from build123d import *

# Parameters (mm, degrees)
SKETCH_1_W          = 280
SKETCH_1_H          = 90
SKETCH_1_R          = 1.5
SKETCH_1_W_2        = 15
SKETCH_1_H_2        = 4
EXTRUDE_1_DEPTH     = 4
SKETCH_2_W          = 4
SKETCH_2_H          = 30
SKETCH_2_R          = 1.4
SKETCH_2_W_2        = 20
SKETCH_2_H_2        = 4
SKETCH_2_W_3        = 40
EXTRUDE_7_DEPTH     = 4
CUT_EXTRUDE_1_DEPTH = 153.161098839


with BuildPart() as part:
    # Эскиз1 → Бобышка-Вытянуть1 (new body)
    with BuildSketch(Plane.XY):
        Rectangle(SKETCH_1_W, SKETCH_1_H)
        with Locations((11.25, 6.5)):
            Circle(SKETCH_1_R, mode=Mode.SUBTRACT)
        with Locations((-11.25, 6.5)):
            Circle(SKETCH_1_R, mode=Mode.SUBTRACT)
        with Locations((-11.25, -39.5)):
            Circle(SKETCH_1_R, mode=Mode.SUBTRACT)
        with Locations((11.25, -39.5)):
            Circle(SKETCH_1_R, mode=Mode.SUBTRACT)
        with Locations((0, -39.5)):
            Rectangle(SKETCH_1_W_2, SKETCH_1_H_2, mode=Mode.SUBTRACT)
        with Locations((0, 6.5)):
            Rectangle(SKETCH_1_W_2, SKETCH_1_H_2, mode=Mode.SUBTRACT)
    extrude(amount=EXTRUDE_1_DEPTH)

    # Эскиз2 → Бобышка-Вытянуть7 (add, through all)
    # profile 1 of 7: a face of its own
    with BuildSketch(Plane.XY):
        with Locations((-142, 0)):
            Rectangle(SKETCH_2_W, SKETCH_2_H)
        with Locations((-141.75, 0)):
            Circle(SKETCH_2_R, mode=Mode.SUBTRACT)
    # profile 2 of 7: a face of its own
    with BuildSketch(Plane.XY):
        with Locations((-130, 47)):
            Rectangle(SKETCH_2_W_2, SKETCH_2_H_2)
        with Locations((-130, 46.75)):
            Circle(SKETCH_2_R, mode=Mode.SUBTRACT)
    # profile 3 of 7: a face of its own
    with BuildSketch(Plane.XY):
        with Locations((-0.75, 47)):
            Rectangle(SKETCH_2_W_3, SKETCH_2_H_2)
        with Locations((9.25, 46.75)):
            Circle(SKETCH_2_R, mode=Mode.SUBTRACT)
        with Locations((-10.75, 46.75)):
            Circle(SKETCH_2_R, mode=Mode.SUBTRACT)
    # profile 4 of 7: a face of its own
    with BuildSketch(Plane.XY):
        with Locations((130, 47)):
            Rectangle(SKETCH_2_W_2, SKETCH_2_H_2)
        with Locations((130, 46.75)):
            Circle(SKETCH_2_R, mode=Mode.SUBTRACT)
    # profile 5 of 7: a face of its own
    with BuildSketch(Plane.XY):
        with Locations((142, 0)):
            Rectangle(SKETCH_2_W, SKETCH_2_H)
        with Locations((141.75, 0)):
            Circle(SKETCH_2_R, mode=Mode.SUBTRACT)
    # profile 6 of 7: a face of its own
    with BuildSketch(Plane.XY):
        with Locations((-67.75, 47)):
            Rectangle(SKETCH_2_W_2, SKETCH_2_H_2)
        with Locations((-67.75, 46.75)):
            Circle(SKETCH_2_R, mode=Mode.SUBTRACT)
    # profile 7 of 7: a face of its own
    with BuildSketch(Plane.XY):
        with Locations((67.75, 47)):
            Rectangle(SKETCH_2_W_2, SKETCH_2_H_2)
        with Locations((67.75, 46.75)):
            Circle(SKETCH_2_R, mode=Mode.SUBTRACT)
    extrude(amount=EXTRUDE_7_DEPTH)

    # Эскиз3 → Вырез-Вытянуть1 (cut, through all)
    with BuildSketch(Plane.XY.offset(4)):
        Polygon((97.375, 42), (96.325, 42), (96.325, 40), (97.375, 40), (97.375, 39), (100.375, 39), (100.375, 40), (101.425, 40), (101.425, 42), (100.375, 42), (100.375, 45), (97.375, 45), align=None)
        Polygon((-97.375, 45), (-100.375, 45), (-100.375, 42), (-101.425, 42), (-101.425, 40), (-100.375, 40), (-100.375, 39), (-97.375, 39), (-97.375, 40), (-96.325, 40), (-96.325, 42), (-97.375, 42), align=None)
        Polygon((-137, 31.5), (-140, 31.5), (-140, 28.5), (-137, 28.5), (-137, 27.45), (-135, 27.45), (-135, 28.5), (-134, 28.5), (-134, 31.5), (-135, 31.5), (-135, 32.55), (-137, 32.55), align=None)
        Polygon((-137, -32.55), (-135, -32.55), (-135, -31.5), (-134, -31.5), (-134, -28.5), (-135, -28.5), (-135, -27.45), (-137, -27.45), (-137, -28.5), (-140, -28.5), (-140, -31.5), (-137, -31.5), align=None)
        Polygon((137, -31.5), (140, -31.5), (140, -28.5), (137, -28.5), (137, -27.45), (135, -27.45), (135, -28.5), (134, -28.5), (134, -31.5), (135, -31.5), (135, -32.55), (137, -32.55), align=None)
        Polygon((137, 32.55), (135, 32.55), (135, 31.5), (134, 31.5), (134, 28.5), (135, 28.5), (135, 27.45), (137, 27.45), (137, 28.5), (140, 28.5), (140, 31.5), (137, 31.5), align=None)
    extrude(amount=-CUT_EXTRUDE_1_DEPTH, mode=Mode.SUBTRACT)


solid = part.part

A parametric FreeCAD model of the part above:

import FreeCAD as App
import Part
import Sketcher
from FreeCAD import Vector


def add_polygon(sketch, points):
    """Adds a closed chain of lines whose ends are joined by coincident constraints."""
    first, n = sketch.GeometryCount, len(points)
    for a, b in zip(points, points[1:] + points[:1]):
        sketch.addGeometry(Part.LineSegment(App.Vector(*a, 0), App.Vector(*b, 0)), False)
    for i in range(n):
        sketch.addConstraint(Sketcher.Constraint("Coincident", first + i, 2, first + (i + 1) % n, 1))

doc = App.newDocument("Part")
params = doc.addObject("Spreadsheet::Sheet", "Params")
for row, (alias, value) in enumerate([
    ("sketch1_diameter", "3 mm"),
    ("sketch1_width", "280 mm"),
    ("sketch1_width2", "15 mm"),
    ("sketch1_height", "90 mm"),
    ("sketch1_height2", "4 mm"),
    ("pad1_length", "4 mm"),
    ("sketch2_diameter", "2.8 mm"),
    ("sketch2_width", "4 mm"),
    ("sketch2_width2", "20 mm"),
    ("sketch2_width3", "40 mm"),
    ("sketch2_height", "30 mm"),
    ("pad2_length", "4 mm"),
    ("sketch3_width", "3 mm"),
    ("sketch3_width2", "2 mm"),
    ("sketch3_width3", "1 mm"),
    ("sketch3_width4", "1.05 mm"),
], start=1):
    params.set(f"A{row}", alias)
    params.set(f"B{row}", "=" + value)
    params.setAlias(f"B{row}", alias)

body = doc.addObject("PartDesign::Body", "Body")

sketch1 = body.newObject("Sketcher::SketchObject", "Sketch")
sketch1.AttachmentSupport = (doc.getObject("XY_Plane"), [""])
sketch1.MapMode = "FlatFace"
add_polygon(sketch1, [(-140, 45), (-140, -45), (140, -45), (140, 45)])
sketch1.addGeometry(Part.Circle(Vector(-11.2, -39.5, 0), Vector(0, 0, 1), 1.5), False)
add_polygon(sketch1, [(7.5, -41.5), (-7.5, -41.5), (-7.5, -37.5), (7.5, -37.5)])
sketch1.addGeometry(Part.Circle(Vector(11.2, -39.5, 0), Vector(0, 0, 1), 1.5), False)
sketch1.addGeometry(Part.Circle(Vector(-11.2, 6.5, 0), Vector(0, 0, 1), 1.5), False)
add_polygon(sketch1, [(7.5, 4.5), (-7.5, 4.5), (-7.5, 8.5), (7.5, 8.5)])
sketch1.addGeometry(Part.Circle(Vector(11.2, 6.5, 0), Vector(0, 0, 1), 1.5), False)
sketch1.addConstraint([
    Sketcher.Constraint("Vertical", 0),
    Sketcher.Constraint("Horizontal", 1),
    Sketcher.Constraint("Vertical", 2),
    Sketcher.Constraint("Horizontal", 3),
    Sketcher.Constraint("Horizontal", 5),
    Sketcher.Constraint("Vertical", 6),
    Sketcher.Constraint("Horizontal", 7),
    Sketcher.Constraint("Vertical", 8),
    Sketcher.Constraint("Horizontal", 11),
    Sketcher.Constraint("Vertical", 12),
    Sketcher.Constraint("Horizontal", 13),
    Sketcher.Constraint("Vertical", 14),
    Sketcher.Constraint("Equal", 4, 9),
    Sketcher.Constraint("Equal", 9, 10),
    Sketcher.Constraint("Equal", 10, 15),
    Sketcher.Constraint("Symmetric", 0, 2, 2, 2, -1, 1),
    Sketcher.Constraint("Symmetric", 4, 3, 9, 3, -2),
    Sketcher.Constraint("Symmetric", 10, 3, 15, 3, -2),
    Sketcher.Constraint("Vertical", 4, 3, 10, 3),
    Sketcher.Constraint("Vertical", 6, 2, 11, 2),
    Sketcher.Constraint("Vertical", 8, 2, 13, 2),
    Sketcher.Constraint("Equal", 8, 12),
    Sketcher.Constraint("Diameter", 4, 3.0),
    Sketcher.Constraint("DistanceX", 1, 1, 1, 2, 280.0),
    Sketcher.Constraint("DistanceX", 5, 2, 5, 1, 15.0),
    Sketcher.Constraint("DistanceY", 0, 2, 0, 1, 90.0),
    Sketcher.Constraint("DistanceY", 6, 1, 6, 2, 4.0),
    Sketcher.Constraint("DistanceY", 4, 3, 10, 3, 46.0),
    Sketcher.Constraint("DistanceY", 5, 2, 4, 3, 2.0),
    Sketcher.Constraint("DistanceY", 11, 2, 10, 3, 2.0),
    Sketcher.Constraint("DistanceY", 4, 3, -1, 1, 39.5),
    Sketcher.Constraint("DistanceX", 5, 2, -1, 1, 7.5),
    Sketcher.Constraint("DistanceX", 4, 3, 9, 3, 22.5),
])
sketch1.setExpression("Constraints[34]", "Params.sketch1_diameter")
sketch1.setExpression("Constraints[35]", "Params.sketch1_width")
sketch1.setExpression("Constraints[36]", "Params.sketch1_width2")
sketch1.setExpression("Constraints[37]", "Params.sketch1_height")
sketch1.setExpression("Constraints[38]", "Params.sketch1_height2")
pad1 = body.newObject("PartDesign::Pad", "Pad")
pad1.Profile = sketch1
pad1.setExpression("Length", "Params.pad1_length")

sketch2 = body.newObject("Sketcher::SketchObject", "Sketch001")
sketch2.AttachmentSupport = (doc.getObject("XY_Plane"), [""])
sketch2.MapMode = "FlatFace"
add_polygon(sketch2, [(-144, 15), (-144, -15), (-140, -15), (-140, 15)])
sketch2.addGeometry(Part.Circle(Vector(-141.8, 0, 0), Vector(0, 0, 1), 1.4), False)
add_polygon(sketch2, [(-140, 49), (-140, 45), (-120, 45), (-120, 49)])
sketch2.addGeometry(Part.Circle(Vector(-130, 46.8, 0), Vector(0, 0, 1), 1.4), False)
add_polygon(sketch2, [(-20.8, 49), (-20.8, 45), (19.2, 45), (19.2, 49)])
sketch2.addGeometry(Part.Circle(Vector(-10.8, 46.8, 0), Vector(0, 0, 1), 1.4), False)
sketch2.addGeometry(Part.Circle(Vector(9.2, 46.8, 0), Vector(0, 0, 1), 1.4), False)
add_polygon(sketch2, [(120, 49), (120, 45), (140, 45), (140, 49)])
sketch2.addGeometry(Part.Circle(Vector(130, 46.8, 0), Vector(0, 0, 1), 1.4), False)
add_polygon(sketch2, [(140, 15), (140, -15), (144, -15), (144, 15)])
sketch2.addGeometry(Part.Circle(Vector(141.8, 0, 0), Vector(0, 0, 1), 1.4), False)
add_polygon(sketch2, [(-77.8, 49), (-77.8, 45), (-57.8, 45), (-57.8, 49)])
sketch2.addGeometry(Part.Circle(Vector(-67.8, 46.8, 0), Vector(0, 0, 1), 1.4), False)
add_polygon(sketch2, [(57.8, 49), (57.8, 45), (77.8, 45), (77.8, 49)])
sketch2.addGeometry(Part.Circle(Vector(67.8, 46.8, 0), Vector(0, 0, 1), 1.4), False)
sketch2.addConstraint([
    Sketcher.Constraint("Vertical", 0),
    Sketcher.Constraint("Horizontal", 1),
    Sketcher.Constraint("Vertical", 2),
    Sketcher.Constraint("Horizontal", 3),
    Sketcher.Constraint("Vertical", 5),
    Sketcher.Constraint("Horizontal", 6),
    Sketcher.Constraint("Vertical", 7),
    Sketcher.Constraint("Horizontal", 8),
    Sketcher.Constraint("Vertical", 10),
    Sketcher.Constraint("Horizontal", 11),
    Sketcher.Constraint("Vertical", 12),
    Sketcher.Constraint("Horizontal", 13),
    Sketcher.Constraint("Vertical", 16),
    Sketcher.Constraint("Horizontal", 17),
    Sketcher.Constraint("Vertical", 18),
    Sketcher.Constraint("Horizontal", 19),
    Sketcher.Constraint("Vertical", 21),
    Sketcher.Constraint("Horizontal", 22),
    Sketcher.Constraint("Vertical", 23),
    Sketcher.Constraint("Horizontal", 24),
    Sketcher.Constraint("Vertical", 26),
    Sketcher.Constraint("Horizontal", 27),
    Sketcher.Constraint("Vertical", 28),
    Sketcher.Constraint("Horizontal", 29),
    Sketcher.Constraint("Vertical", 31),
    Sketcher.Constraint("Horizontal", 32),
    Sketcher.Constraint("Vertical", 33),
    Sketcher.Constraint("Horizontal", 34),
    Sketcher.Constraint("Equal", 4, 9),
    Sketcher.Constraint("Equal", 9, 14),
    Sketcher.Constraint("Equal", 14, 15),
    Sketcher.Constraint("Equal", 15, 20),
    Sketcher.Constraint("Equal", 20, 25),
    Sketcher.Constraint("Equal", 25, 30),
    Sketcher.Constraint("Equal", 30, 35),
    Sketcher.Constraint("Symmetric", 4, 3, 25, 3, -1, 1),
    Sketcher.Constraint("Symmetric", 2, 2, 21, 2, -1, 1),
    Sketcher.Constraint("Symmetric", 0, 2, 23, 2, -1, 1),
    Sketcher.Constraint("Symmetric", 9, 3, 20, 3, -2),
    Sketcher.Constraint("Symmetric", 30, 3, 35, 3, -2),
    Sketcher.Constraint("Symmetric", 6, 2, 16, 2, -2),
    Sketcher.Constraint("Symmetric", 8, 2, 18, 2, -2),
    Sketcher.Constraint("Symmetric", 27, 2, 31, 2, -2),
    Sketcher.Constraint("Symmetric", 29, 2, 33, 2, -2),
    Sketcher.Constraint("PointOnObject", 4, 3, -1),
    Sketcher.Constraint("Horizontal", 9, 3, 14, 3),
    Sketcher.Constraint("Horizontal", 14, 3, 15, 3),
    Sketcher.Constraint("Horizontal", 20, 3, 30, 3),
    Sketcher.Constraint("Horizontal", 6, 2, 10, 2),
    Sketcher.Constraint("Horizontal", 8, 2, 12, 2),
    Sketcher.Constraint("Horizontal", 1, 2, 21, 2),
    Sketcher.Constraint("Horizontal", 17, 2, 26, 2),
    Sketcher.Constraint("Horizontal", 19, 2, 28, 2),
    Sketcher.Constraint("Vertical", 2, 2, 5, 2),
    Sketcher.Constraint("Equal", 19, 27),
    Sketcher.Constraint("Equal", 24, 5),
    Sketcher.Constraint("Diameter", 4, 2.8),
    Sketcher.Constraint("DistanceX", 1, 1, 1, 2, 4.0),
    Sketcher.Constraint("DistanceX", 6, 1, 6, 2, 20.0),
    Sketcher.Constraint("DistanceX", 11, 1, 11, 2, 40.0),
    Sketcher.Constraint("DistanceY", 0, 2, 0, 1, 30.0),
    Sketcher.Constraint("DistanceX", 9, 3, -1, 1, 130.0),
    Sketcher.Constraint("DistanceX", 0, 2, -1, 1, 144.0),
    Sketcher.Constraint("DistanceY", -1, 1, 5, 2, 45.0),
    Sketcher.Constraint("DistanceX", 4, 3, 14, 3, 131.0),
    Sketcher.Constraint("DistanceX", 14, 3, 15, 3, 20.0),
    Sketcher.Constraint("DistanceX", 30, 3, 14, 3, 57.0),
    Sketcher.Constraint("DistanceX", 10, 2, 14, 3, 10.0),
    Sketcher.Constraint("DistanceX", 26, 2, 30, 3, 10.0),
    Sketcher.Constraint("DistanceX", 15, 3, 25, 3, 132.5),
    Sketcher.Constraint("DistanceY", -1, 1, 9, 3, 46.75),
])
sketch2.setExpression("Constraints[84]", "Params.sketch2_diameter")
sketch2.setExpression("Constraints[85]", "Params.sketch2_width")
sketch2.setExpression("Constraints[86]", "Params.sketch2_width2")
sketch2.setExpression("Constraints[87]", "Params.sketch2_width3")
sketch2.setExpression("Constraints[88]", "Params.sketch2_height")
pad2 = body.newObject("PartDesign::Pad", "Pad001")
pad2.Profile = sketch2
pad2.setExpression("Length", "Params.pad2_length")

sketch3 = body.newObject("Sketcher::SketchObject", "Sketch002")
sketch3.AttachmentSupport = (doc.getObject("XY_Plane"), [""])
sketch3.MapMode = "FlatFace"
sketch3.AttachmentOffset = App.Placement(Vector(0, 0, 4), App.Rotation())
add_polygon(sketch3, [(97.4, 42), (96.3, 42), (96.3, 40), (97.4, 40), (97.4, 39), (100.4, 39), (100.4, 40), (101.4, 40), (101.4, 42), (100.4, 42), (100.4, 45), (97.4, 45)])
add_polygon(sketch3, [(-97.4, 45), (-100.4, 45), (-100.4, 42), (-101.4, 42), (-101.4, 40), (-100.4, 40), (-100.4, 39), (-97.4, 39), (-97.4, 40), (-96.3, 40), (-96.3, 42), (-97.4, 42)])
add_polygon(sketch3, [(-137, 31.5), (-140, 31.5), (-140, 28.5), (-137, 28.5), (-137, 27.4), (-135, 27.4), (-135, 28.5), (-134, 28.5), (-134, 31.5), (-135, 31.5), (-135, 32.5), (-137, 32.5)])
add_polygon(sketch3, [(-137, -32.5), (-135, -32.5), (-135, -31.5), (-134, -31.5), (-134, -28.5), (-135, -28.5), (-135, -27.4), (-137, -27.4), (-137, -28.5), (-140, -28.5), (-140, -31.5), (-137, -31.5)])
add_polygon(sketch3, [(137, -31.5), (140, -31.5), (140, -28.5), (137, -28.5), (137, -27.4), (135, -27.4), (135, -28.5), (134, -28.5), (134, -31.5), (135, -31.5), (135, -32.5), (137, -32.5)])
add_polygon(sketch3, [(137, 32.5), (135, 32.5), (135, 31.5), (134, 31.5), (134, 28.5), (135, 28.5), (135, 27.4), (137, 27.4), (137, 28.5), (140, 28.5), (140, 31.5), (137, 31.5)])
sketch3.addConstraint([
    Sketcher.Constraint("Horizontal", 0),
    Sketcher.Constraint("Vertical", 1),
    Sketcher.Constraint("Horizontal", 2),
    Sketcher.Constraint("Vertical", 3),
    Sketcher.Constraint("Horizontal", 4),
    Sketcher.Constraint("Vertical", 5),
    Sketcher.Constraint("Horizontal", 6),
    Sketcher.Constraint("Vertical", 7),
    Sketcher.Constraint("Horizontal", 8),
    Sketcher.Constraint("Vertical", 9),
    Sketcher.Constraint("Horizontal", 10),
    Sketcher.Constraint("Vertical", 11),
    Sketcher.Constraint("Horizontal", 12),
    Sketcher.Constraint("Vertical", 13),
    Sketcher.Constraint("Horizontal", 14),
    Sketcher.Constraint("Vertical", 15),
    Sketcher.Constraint("Horizontal", 16),
    Sketcher.Constraint("Vertical", 17),
    Sketcher.Constraint("Horizontal", 18),
    Sketcher.Constraint("Vertical", 19),
    Sketcher.Constraint("Horizontal", 20),
    Sketcher.Constraint("Vertical", 21),
    Sketcher.Constraint("Horizontal", 22),
    Sketcher.Constraint("Vertical", 23),
    Sketcher.Constraint("Horizontal", 24),
    Sketcher.Constraint("Vertical", 25),
    Sketcher.Constraint("Horizontal", 26),
    Sketcher.Constraint("Vertical", 27),
    Sketcher.Constraint("Horizontal", 28),
    Sketcher.Constraint("Vertical", 29),
    Sketcher.Constraint("Horizontal", 30),
    Sketcher.Constraint("Vertical", 31),
    Sketcher.Constraint("Horizontal", 32),
    Sketcher.Constraint("Vertical", 33),
    Sketcher.Constraint("Horizontal", 34),
    Sketcher.Constraint("Vertical", 35),
    Sketcher.Constraint("Horizontal", 36),
    Sketcher.Constraint("Vertical", 37),
    Sketcher.Constraint("Horizontal", 38),
    Sketcher.Constraint("Vertical", 39),
    Sketcher.Constraint("Horizontal", 40),
    Sketcher.Constraint("Vertical", 41),
    Sketcher.Constraint("Horizontal", 42),
    Sketcher.Constraint("Vertical", 43),
    Sketcher.Constraint("Horizontal", 44),
    Sketcher.Constraint("Vertical", 45),
    Sketcher.Constraint("Horizontal", 46),
    Sketcher.Constraint("Vertical", 47),
    Sketcher.Constraint("Horizontal", 48),
    Sketcher.Constraint("Vertical", 49),
    Sketcher.Constraint("Horizontal", 50),
    Sketcher.Constraint("Vertical", 51),
    Sketcher.Constraint("Horizontal", 52),
    Sketcher.Constraint("Vertical", 53),
    Sketcher.Constraint("Horizontal", 54),
    Sketcher.Constraint("Vertical", 55),
    Sketcher.Constraint("Horizontal", 56),
    Sketcher.Constraint("Vertical", 57),
    Sketcher.Constraint("Horizontal", 58),
    Sketcher.Constraint("Vertical", 59),
    Sketcher.Constraint("Horizontal", 60),
    Sketcher.Constraint("Vertical", 61),
    Sketcher.Constraint("Horizontal", 62),
    Sketcher.Constraint("Vertical", 63),
    Sketcher.Constraint("Horizontal", 64),
    Sketcher.Constraint("Vertical", 65),
    Sketcher.Constraint("Horizontal", 66),
    Sketcher.Constraint("Vertical", 67),
    Sketcher.Constraint("Horizontal", 68),
    Sketcher.Constraint("Vertical", 69),
    Sketcher.Constraint("Horizontal", 70),
    Sketcher.Constraint("Vertical", 71),
    Sketcher.Constraint("Symmetric", 24, 2, 48, 2, -1, 1),
    Sketcher.Constraint("Symmetric", 26, 2, 50, 2, -1, 1),
    Sketcher.Constraint("Symmetric", 28, 2, 52, 2, -1, 1),
    Sketcher.Constraint("Symmetric", 30, 2, 54, 2, -1, 1),
    Sketcher.Constraint("Symmetric", 32, 2, 56, 2, -1, 1),
    Sketcher.Constraint("Symmetric", 34, 2, 58, 2, -1, 1),
    Sketcher.Constraint("Symmetric", 36, 2, 60, 2, -1, 1),
    Sketcher.Constraint("Symmetric", 38, 2, 62, 2, -1, 1),
    Sketcher.Constraint("Symmetric", 40, 2, 64, 2, -1, 1),
    Sketcher.Constraint("Symmetric", 42, 2, 66, 2, -1, 1),
    Sketcher.Constraint("Symmetric", 44, 2, 68, 2, -1, 1),
    Sketcher.Constraint("Symmetric", 46, 2, 70, 2, -1, 1),
    Sketcher.Constraint("Symmetric", 9, 2, 12, 2, -2),
    Sketcher.Constraint("Symmetric", 7, 2, 14, 2, -2),
    Sketcher.Constraint("Symmetric", 5, 2, 16, 2, -2),
    Sketcher.Constraint("Symmetric", 3, 2, 18, 2, -2),
    Sketcher.Constraint("Symmetric", 1, 2, 20, 2, -2),
    Sketcher.Constraint("Symmetric", 11, 2, 22, 2, -2),
    Sketcher.Constraint("Symmetric", 45, 2, 48, 2, -2),
    Sketcher.Constraint("Symmetric", 43, 2, 50, 2, -2),
    Sketcher.Constraint("Symmetric", 41, 2, 52, 2, -2),
    Sketcher.Constraint("Symmetric", 39, 2, 54, 2, -2),
    Sketcher.Constraint("Symmetric", 37, 2, 56, 2, -2),
    Sketcher.Constraint("Symmetric", 47, 2, 58, 2, -2),
    Sketcher.Constraint("Horizontal", 2, 2, 5, 2),
    Sketcher.Constraint("Horizontal", 0, 2, 7, 2),
    Sketcher.Constraint("Horizontal", 26, 2, 29, 2),
    Sketcher.Constraint("Horizontal", 24, 2, 31, 2),
    Sketcher.Constraint("Vertical", 5, 2, 8, 2),
    Sketcher.Constraint("Vertical", 3, 2, 10, 2),
    Sketcher.Constraint("Vertical", 29, 2, 32, 2),
    Sketcher.Constraint("Vertical", 27, 2, 34, 2),
    Sketcher.Constraint("Equal", 2, 6),
    Sketcher.Constraint("Equal", 18, 24),
    Sketcher.Constraint("Equal", 66, 1),
    Sketcher.Constraint("Equal", 64, 3),
    Sketcher.Constraint("Equal", 70, 9),
    Sketcher.Constraint("Equal", 23, 25),
    Sketcher.Constraint("Equal", 22, 27),
    Sketcher.Constraint("Equal", 29, 33),
    Sketcher.Constraint("DistanceX", 4, 1, 4, 2, 3.0),
    Sketcher.Constraint("DistanceX", 28, 1, 28, 2, 2.0),
    Sketcher.Constraint("DistanceX", 30, 1, 30, 2, 1.0),
    Sketcher.Constraint("DistanceY", -1, 1, 0, 2, 42.0),
    Sketcher.Constraint("DistanceX", 24, 2, -1, 1, 140.0),
    Sketcher.Constraint("DistanceX", 0, 2, 0, 1, 1.05),
    Sketcher.Constraint("DistanceY", -1, 1, 24, 2, 31.5),
    Sketcher.Constraint("DistanceX", -1, 1, 0, 2, 96.325),
])
sketch3.setExpression("Constraints[184]", "Params.sketch3_width")
sketch3.setExpression("Constraints[185]", "Params.sketch3_width2")
sketch3.setExpression("Constraints[186]", "Params.sketch3_width3")
sketch3.setExpression("Constraints[189]", "Params.sketch3_width4")
pocket1 = body.newObject("PartDesign::Pocket", "Pocket")
pocket1.Profile = sketch3
pocket1.Type = "ThroughAll"

doc.recompute()
